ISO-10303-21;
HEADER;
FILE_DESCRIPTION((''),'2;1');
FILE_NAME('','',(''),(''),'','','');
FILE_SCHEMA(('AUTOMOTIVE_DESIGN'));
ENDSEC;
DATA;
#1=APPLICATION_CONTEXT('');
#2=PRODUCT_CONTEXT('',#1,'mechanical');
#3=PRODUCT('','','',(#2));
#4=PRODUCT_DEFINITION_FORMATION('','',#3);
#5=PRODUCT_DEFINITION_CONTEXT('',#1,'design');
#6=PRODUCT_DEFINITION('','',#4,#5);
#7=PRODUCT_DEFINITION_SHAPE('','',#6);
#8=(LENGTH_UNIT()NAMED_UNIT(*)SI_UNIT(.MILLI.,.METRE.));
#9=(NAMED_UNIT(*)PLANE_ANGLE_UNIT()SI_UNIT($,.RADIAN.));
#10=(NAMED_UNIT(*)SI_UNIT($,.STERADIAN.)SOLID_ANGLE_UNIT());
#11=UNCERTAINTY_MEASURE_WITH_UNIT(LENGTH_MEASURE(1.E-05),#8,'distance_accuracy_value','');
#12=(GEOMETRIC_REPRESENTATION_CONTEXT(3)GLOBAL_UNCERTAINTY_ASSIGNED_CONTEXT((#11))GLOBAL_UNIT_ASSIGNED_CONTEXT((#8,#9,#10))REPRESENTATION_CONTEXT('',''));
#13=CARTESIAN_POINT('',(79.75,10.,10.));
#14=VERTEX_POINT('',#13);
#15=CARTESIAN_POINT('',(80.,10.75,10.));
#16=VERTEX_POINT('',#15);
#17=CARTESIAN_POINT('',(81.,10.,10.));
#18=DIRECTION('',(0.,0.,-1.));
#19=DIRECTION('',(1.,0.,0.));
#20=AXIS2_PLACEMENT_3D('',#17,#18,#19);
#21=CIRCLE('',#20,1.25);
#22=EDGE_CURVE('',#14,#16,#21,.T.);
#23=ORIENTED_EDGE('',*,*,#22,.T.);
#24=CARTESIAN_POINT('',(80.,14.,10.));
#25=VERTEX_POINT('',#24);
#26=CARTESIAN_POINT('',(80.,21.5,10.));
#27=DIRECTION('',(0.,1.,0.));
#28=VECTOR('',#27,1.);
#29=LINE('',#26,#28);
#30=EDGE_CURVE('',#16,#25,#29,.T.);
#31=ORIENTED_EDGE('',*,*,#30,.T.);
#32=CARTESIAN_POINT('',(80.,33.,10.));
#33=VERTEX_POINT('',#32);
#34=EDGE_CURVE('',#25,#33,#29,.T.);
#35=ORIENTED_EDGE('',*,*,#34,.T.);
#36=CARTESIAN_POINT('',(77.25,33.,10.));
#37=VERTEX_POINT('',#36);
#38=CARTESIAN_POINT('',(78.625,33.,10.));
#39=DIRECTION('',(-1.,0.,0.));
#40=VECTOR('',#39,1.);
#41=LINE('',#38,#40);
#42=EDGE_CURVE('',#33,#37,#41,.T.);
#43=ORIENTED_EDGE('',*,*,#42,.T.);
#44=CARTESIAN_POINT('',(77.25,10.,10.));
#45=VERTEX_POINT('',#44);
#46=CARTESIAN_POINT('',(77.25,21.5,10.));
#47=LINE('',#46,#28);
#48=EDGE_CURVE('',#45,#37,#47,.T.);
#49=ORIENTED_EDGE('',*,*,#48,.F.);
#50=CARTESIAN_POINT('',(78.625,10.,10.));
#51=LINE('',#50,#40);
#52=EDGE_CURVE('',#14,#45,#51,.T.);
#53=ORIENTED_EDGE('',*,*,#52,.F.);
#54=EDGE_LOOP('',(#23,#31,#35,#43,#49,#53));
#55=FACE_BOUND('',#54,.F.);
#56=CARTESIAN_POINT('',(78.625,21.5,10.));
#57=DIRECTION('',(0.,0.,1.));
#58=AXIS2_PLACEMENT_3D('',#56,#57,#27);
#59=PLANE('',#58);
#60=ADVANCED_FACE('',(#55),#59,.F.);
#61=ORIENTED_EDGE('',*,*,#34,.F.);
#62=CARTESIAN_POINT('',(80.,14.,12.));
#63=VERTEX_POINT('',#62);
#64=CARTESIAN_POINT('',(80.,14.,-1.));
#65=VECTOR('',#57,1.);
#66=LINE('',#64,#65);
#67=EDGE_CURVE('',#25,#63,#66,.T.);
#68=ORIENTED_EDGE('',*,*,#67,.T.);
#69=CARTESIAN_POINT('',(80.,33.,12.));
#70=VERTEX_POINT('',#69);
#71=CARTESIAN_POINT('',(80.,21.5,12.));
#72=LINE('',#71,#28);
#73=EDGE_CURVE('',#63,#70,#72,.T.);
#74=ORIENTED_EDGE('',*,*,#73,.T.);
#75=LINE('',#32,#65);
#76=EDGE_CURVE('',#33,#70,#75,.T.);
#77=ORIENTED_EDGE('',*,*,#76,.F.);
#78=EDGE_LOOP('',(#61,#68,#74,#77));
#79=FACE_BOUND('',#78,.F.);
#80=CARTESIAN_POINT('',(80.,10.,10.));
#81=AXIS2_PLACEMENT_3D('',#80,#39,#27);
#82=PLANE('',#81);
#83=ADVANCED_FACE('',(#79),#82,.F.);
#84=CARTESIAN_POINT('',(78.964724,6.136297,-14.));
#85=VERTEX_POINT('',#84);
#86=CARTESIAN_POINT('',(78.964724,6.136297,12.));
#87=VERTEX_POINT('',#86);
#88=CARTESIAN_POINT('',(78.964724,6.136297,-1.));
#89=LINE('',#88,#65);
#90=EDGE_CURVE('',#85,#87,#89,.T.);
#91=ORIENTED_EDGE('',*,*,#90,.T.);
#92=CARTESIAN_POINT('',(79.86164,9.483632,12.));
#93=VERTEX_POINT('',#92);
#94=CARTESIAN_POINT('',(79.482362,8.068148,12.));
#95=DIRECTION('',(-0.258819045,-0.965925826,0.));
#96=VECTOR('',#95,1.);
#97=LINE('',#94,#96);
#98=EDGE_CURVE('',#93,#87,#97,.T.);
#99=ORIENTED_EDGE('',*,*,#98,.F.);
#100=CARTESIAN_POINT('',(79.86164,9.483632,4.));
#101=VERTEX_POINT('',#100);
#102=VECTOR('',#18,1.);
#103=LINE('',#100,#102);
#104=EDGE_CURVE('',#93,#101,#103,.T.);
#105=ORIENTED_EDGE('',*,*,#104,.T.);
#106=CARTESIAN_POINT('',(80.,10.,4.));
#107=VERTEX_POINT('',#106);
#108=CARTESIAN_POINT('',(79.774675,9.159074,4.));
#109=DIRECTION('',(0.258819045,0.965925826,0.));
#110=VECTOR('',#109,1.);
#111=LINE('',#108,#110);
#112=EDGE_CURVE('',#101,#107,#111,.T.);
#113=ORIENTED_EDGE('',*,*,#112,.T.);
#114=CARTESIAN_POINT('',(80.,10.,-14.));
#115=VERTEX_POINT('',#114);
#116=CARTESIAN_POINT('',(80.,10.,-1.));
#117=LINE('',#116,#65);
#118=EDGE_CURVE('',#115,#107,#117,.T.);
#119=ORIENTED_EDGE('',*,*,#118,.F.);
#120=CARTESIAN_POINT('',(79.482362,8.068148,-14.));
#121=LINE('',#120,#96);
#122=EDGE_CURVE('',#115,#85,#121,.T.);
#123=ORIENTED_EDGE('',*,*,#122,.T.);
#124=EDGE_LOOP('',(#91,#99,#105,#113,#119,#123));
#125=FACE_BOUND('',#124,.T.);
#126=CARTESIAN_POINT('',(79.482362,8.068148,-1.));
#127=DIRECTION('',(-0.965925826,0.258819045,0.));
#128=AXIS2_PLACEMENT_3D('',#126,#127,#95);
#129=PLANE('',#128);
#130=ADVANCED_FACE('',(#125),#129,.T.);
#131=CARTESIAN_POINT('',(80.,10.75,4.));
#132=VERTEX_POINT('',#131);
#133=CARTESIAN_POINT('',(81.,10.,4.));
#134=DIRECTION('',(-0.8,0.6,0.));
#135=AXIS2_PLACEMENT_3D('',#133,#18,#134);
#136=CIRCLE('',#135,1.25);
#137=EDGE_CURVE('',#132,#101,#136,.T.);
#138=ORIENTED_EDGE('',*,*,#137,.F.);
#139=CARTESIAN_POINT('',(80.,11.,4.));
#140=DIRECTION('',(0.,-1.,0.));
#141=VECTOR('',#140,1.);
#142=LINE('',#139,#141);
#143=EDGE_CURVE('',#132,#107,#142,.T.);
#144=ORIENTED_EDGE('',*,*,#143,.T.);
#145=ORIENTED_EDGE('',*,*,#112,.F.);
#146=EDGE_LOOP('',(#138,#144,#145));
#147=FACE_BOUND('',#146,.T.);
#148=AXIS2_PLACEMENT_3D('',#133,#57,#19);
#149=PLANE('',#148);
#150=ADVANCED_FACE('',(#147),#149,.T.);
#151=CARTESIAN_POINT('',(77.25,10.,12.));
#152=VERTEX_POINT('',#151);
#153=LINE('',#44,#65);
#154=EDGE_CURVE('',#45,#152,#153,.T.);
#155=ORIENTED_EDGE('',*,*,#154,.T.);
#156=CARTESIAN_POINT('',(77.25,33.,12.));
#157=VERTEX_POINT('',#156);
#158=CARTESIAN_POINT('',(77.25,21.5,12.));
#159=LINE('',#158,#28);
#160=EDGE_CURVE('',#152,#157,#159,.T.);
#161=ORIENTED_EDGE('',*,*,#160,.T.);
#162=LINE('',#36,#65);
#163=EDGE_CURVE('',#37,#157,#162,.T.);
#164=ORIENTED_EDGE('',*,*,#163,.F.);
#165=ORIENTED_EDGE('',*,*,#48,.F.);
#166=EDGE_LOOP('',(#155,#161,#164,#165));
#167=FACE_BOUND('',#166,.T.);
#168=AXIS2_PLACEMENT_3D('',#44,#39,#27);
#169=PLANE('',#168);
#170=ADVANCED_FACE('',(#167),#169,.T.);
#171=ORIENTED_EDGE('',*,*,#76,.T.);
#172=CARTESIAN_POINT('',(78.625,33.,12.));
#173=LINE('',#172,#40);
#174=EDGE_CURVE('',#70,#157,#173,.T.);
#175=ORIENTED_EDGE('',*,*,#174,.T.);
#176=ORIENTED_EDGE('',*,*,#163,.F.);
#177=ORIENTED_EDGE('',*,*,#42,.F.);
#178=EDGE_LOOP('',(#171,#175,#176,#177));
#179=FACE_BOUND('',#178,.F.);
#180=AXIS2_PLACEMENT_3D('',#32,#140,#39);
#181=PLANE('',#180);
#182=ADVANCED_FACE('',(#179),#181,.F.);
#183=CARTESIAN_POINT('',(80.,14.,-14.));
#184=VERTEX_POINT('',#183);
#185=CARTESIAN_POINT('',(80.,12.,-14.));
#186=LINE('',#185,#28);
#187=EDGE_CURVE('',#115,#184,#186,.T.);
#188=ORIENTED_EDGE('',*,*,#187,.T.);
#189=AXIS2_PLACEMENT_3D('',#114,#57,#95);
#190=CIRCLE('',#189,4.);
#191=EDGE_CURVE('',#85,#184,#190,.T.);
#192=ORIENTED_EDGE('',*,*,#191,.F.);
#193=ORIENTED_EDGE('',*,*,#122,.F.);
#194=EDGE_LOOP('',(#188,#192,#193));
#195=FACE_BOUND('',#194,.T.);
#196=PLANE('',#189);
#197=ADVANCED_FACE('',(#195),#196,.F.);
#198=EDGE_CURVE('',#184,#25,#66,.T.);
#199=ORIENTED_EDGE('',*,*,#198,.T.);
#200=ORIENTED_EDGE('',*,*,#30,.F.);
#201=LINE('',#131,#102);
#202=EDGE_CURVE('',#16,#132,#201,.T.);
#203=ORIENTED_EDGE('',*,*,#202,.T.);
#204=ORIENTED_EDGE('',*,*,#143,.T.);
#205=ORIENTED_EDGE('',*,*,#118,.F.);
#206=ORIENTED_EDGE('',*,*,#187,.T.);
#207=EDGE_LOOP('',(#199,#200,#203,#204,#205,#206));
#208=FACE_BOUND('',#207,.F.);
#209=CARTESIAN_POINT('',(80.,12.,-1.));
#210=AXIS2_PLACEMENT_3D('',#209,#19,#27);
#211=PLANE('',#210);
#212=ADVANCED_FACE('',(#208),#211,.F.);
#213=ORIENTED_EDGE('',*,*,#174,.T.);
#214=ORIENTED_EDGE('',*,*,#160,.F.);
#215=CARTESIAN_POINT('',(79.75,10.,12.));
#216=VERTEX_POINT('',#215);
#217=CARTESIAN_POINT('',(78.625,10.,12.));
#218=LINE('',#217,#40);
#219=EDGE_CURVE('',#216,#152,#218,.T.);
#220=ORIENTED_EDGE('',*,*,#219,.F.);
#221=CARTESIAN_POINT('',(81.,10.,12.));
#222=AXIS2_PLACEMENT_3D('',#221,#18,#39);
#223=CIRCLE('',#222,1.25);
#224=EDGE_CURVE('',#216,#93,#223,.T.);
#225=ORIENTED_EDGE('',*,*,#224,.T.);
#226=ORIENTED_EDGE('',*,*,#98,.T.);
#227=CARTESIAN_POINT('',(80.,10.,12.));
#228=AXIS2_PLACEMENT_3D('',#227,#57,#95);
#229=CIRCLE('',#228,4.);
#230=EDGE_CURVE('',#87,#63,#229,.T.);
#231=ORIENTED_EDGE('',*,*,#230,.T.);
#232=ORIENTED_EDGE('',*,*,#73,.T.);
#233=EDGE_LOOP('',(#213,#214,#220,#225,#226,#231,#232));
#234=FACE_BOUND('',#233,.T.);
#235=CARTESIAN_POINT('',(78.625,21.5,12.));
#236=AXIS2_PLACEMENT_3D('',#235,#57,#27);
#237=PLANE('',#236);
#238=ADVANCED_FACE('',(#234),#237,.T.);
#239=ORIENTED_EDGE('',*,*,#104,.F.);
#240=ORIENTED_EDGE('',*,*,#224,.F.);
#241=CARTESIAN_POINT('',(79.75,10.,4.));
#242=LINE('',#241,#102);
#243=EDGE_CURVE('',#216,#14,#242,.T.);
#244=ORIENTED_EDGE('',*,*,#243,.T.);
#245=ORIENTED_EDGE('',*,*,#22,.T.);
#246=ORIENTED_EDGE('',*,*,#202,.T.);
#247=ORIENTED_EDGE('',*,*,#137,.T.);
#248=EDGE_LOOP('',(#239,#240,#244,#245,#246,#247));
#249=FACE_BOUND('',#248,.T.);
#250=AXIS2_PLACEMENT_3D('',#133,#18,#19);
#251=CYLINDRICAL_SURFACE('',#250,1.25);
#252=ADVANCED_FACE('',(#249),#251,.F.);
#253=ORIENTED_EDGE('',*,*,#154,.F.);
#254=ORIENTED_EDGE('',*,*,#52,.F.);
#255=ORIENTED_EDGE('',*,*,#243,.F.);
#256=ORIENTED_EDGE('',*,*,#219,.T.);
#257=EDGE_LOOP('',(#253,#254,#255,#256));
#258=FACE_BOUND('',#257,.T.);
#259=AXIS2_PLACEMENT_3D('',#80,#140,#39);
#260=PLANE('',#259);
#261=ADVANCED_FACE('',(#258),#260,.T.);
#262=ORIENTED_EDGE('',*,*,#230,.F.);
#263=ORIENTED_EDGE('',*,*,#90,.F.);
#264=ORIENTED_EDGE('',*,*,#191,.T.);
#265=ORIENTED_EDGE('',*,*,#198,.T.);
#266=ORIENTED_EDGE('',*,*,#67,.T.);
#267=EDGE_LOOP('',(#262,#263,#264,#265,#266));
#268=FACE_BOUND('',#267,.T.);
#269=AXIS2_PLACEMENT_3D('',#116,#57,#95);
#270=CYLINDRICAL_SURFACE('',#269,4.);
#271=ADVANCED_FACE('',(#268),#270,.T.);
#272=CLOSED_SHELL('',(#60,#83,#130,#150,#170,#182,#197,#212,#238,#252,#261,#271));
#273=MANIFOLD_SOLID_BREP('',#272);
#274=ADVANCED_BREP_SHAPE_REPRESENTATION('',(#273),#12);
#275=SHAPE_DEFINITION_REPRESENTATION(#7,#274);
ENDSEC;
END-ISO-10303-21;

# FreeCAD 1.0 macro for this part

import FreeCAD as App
import Part
import Sketcher

V = App.Vector
Q = App.Units.Quantity

doc = App.newDocument("Part")
body = doc.addObject("PartDesign::Body", "Body")

# Sketch on XY plane
sketch1 = body.newObject("Sketcher::SketchObject", "Sketch")
sketch1.AttachmentSupport = (doc.getObject("XY_Plane"), [""])
sketch1.MapMode = "FlatFace"
sketch1.AttachmentOffset = App.Placement(V(0, 0, 4), App.Rotation())
sketch1.addGeometry(Part.Circle(V(41, 5, 0), V(0, 0, 1), 1.25), False)
sketch1.addConstraint(Sketcher.Constraint("Diameter", 0, Q("2.5 mm")))
sketch1.addConstraint(Sketcher.Constraint("DistanceX", -1, 1, 0, 3, Q("41 mm")))
sketch1.addConstraint(Sketcher.Constraint("DistanceY", -1, 1, 0, 3, Q("5 mm")))
pad1 = body.newObject("PartDesign::Pad", "Pad")
pad1.Profile = sketch1
pad1.Length = 10
body2 = doc.addObject("PartDesign::Body", "Body001")

# Sketch on XY plane
sketch2 = body2.newObject("Sketcher::SketchObject", "Sketch001")
sketch2.AttachmentSupport = (doc.getObject("XY_Plane001"), [""])
sketch2.MapMode = "FlatFace"
sketch2.AttachmentOffset = App.Placement(V(0, 0, 10), App.Rotation())
sketch2.addGeometry(Part.LineSegment(V(37.25, 5, 0), V(40, 5, 0)), False)
sketch2.addGeometry(Part.LineSegment(V(40, 5, 0), V(40, 28, 0)), False)
sketch2.addGeometry(Part.LineSegment(V(40, 28, 0), V(37.25, 28, 0)), False)
sketch2.addGeometry(Part.LineSegment(V(37.25, 28, 0), V(37.25, 5, 0)), False)
sketch2.addConstraint(Sketcher.Constraint("Coincident", 0, 2, 1, 1))
sketch2.addConstraint(Sketcher.Constraint("Coincident", 1, 2, 2, 1))
sketch2.addConstraint(Sketcher.Constraint("Coincident", 2, 2, 3, 1))
sketch2.addConstraint(Sketcher.Constraint("Coincident", 3, 2, 0, 1))
sketch2.addConstraint(Sketcher.Constraint("Horizontal", 0))
sketch2.addConstraint(Sketcher.Constraint("Vertical", 1))
sketch2.addConstraint(Sketcher.Constraint("Horizontal", 2))
sketch2.addConstraint(Sketcher.Constraint("Vertical", 3))
sketch2.addConstraint(Sketcher.Constraint("DistanceY", 1, 1, 1, 2, Q("23 mm")))
sketch2.addConstraint(Sketcher.Constraint("DistanceX", -1, 1, 0, 2, Q("40 mm")))
sketch2.addConstraint(Sketcher.Constraint("DistanceY", -1, 1, 0, 2, Q("5 mm")))
sketch2.addConstraint(Sketcher.Constraint("DistanceX", 0, 1, 0, 2, Q("2.75 mm")))
pad2 = body2.newObject("PartDesign::Pad", "Pad001")
pad2.Profile = sketch2
pad2.Length = 2
body3 = doc.addObject("PartDesign::Body", "Body002")

# Sketch on XZ plane
sketch3 = body3.newObject("Sketcher::SketchObject", "Sketch002")
sketch3.AttachmentSupport = (doc.getObject("XZ_Plane002"), [""])
sketch3.MapMode = "FlatFace"
sketch3.addGeometry(Part.LineSegment(V(0, 26, 0), V(0, 0, 0)), False)
sketch3.addGeometry(Part.LineSegment(V(0, 0, 0), V(4, 0, 0)), False)
sketch3.addGeometry(Part.LineSegment(V(4, 0, 0), V(4, 26, 0)), False)
sketch3.addGeometry(Part.LineSegment(V(4, 26, 0), V(0, 26, 0)), False)
sketch3.addConstraint(Sketcher.Constraint("Coincident", 0, 2, 1, 1))
sketch3.addConstraint(Sketcher.Constraint("Coincident", 1, 2, 2, 1))
sketch3.addConstraint(Sketcher.Constraint("Coincident", 2, 2, 3, 1))
sketch3.addConstraint(Sketcher.Constraint("Coincident", 3, 2, 0, 1))
sketch3.addConstraint(Sketcher.Constraint("Vertical", 0))
sketch3.addConstraint(Sketcher.Constraint("Horizontal", 1))
sketch3.addConstraint(Sketcher.Constraint("Vertical", 2))
sketch3.addConstraint(Sketcher.Constraint("Horizontal", 3))
sketch3.addConstraint(Sketcher.Constraint("Coincident", 0, 2, -1, 1))
sketch3.addConstraint(Sketcher.Constraint("DistanceX", 1, 1, 1, 2, Q("4 mm")))
sketch3.addConstraint(Sketcher.Constraint("DistanceY", 0, 2, 0, 1, Q("26 mm")))
revolution = body3.newObject("PartDesign::Revolution", "Revolution")
revolution.Profile = sketch3
revolution.ReferenceAxis = (sketch3, ["V_Axis"])
revolution.Angle = 195
body4 = doc.addObject("PartDesign::Body", "Body003")
doc.recompute()

body3.Placement = App.Placement(V(40, 5, -14), App.Rotation(V(0, 0, -1), 105))
boolean = body4.newObject("PartDesign::Boolean", "Boolean")
boolean.Type = "Fuse"
boolean.addObjects([body3])
doc.recompute()

boolean2 = body4.newObject("PartDesign::Boolean", "Boolean001")
boolean2.Type = "Fuse"
boolean2.addObjects([body2])
doc.recompute()

boolean3 = body4.newObject("PartDesign::Boolean", "Boolean002")
boolean3.Type = "Cut"
boolean3.addObjects([body])
body5 = doc.addObject("PartDesign::Body", "Body004")
doc.recompute()

body4.Placement = App.Placement(V(40, 5, 0), App.Rotation(V(0, 0, 1), 0))
boolean4 = body5.newObject("PartDesign::Boolean", "Boolean003")
boolean4.Type = "Fuse"
boolean4.addObjects([body4])

doc.recompute()
